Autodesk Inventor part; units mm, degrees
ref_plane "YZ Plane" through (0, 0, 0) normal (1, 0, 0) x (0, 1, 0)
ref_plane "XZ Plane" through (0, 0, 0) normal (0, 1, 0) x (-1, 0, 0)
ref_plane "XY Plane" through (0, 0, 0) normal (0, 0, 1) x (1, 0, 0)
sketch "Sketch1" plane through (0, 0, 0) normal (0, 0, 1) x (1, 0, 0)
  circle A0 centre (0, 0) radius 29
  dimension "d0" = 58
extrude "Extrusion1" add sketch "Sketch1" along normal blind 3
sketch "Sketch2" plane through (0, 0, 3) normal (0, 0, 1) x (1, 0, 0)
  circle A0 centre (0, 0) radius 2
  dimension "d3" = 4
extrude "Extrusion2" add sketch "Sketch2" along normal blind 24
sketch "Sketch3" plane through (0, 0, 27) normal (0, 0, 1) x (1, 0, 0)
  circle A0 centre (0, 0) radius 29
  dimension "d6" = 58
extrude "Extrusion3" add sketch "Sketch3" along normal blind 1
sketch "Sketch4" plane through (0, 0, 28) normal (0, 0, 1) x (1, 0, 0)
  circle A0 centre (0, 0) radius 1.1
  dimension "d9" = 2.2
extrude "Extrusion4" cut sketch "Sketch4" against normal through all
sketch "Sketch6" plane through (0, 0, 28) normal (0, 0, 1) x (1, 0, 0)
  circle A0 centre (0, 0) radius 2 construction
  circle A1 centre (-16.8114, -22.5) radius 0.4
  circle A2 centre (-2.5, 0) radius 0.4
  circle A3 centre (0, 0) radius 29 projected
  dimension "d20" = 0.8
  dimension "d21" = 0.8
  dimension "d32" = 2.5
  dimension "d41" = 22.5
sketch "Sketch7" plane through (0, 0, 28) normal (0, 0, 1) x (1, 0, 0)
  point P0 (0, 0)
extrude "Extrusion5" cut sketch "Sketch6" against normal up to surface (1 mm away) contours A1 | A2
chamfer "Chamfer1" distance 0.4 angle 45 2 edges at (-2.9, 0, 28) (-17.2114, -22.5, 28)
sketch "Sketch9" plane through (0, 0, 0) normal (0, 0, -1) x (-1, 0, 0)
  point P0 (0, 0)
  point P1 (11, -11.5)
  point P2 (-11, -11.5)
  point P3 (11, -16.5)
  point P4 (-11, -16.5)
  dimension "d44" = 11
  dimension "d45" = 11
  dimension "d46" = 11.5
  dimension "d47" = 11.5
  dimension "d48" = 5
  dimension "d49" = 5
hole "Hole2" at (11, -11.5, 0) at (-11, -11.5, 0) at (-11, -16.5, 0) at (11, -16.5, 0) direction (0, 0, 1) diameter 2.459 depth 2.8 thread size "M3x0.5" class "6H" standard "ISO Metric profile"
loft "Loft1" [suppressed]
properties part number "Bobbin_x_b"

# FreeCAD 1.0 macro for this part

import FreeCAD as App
import Part
import Sketcher

V = App.Vector


def edges_at(feature, points):
    """Names of the edges that pass closest to the given points."""
    edges = feature.Shape.Edges
    near = lambda p: min(range(len(edges)), key=lambda i: edges[i].distToShape(Part.Vertex(*p))[0])
    return sorted({f"Edge{near(p) + 1}" for p in points})

doc = App.newDocument("Part")
body = doc.addObject("PartDesign::Body", "Body")

sketch1 = doc.addObject("Sketcher::SketchObject", "Sketch")
body.addObject(sketch1)
sketch1.AttachmentSupport = (doc.XY_Plane, [""])
sketch1.MapMode = "FlatFace"
sketch1.addGeometry(Part.Circle(V(0, 0, 0), V(0, 0, 1), 29), False)
sketch1.addConstraint([
    Sketcher.Constraint("Coincident", 0, 3, -1, 1),
    Sketcher.Constraint("Diameter", 0, 58.0),
])
pad1 = doc.addObject("PartDesign::Pad", "Pad")
body.addObject(pad1)
pad1.Profile = sketch1
pad1.Length = 3

sketch2 = doc.addObject("Sketcher::SketchObject", "Sketch001")
body.addObject(sketch2)
sketch2.AttachmentSupport = (doc.XY_Plane, [""])
sketch2.MapMode = "FlatFace"
sketch2.AttachmentOffset = App.Placement(V(0, 0, 3), App.Rotation())
sketch2.addGeometry(Part.Circle(V(0, 0, 0), V(0, 0, 1), 2), False)
sketch2.addConstraint([
    Sketcher.Constraint("Coincident", 0, 3, -1, 1),
    Sketcher.Constraint("Diameter", 0, 4.0),
])
pad2 = doc.addObject("PartDesign::Pad", "Pad001")
body.addObject(pad2)
pad2.Profile = sketch2
pad2.Length = 24

sketch3 = doc.addObject("Sketcher::SketchObject", "Sketch002")
body.addObject(sketch3)
sketch3.AttachmentSupport = (doc.XY_Plane, [""])
sketch3.MapMode = "FlatFace"
sketch3.AttachmentOffset = App.Placement(V(0, 0, 27), App.Rotation())
sketch3.addGeometry(Part.Circle(V(0, 0, 0), V(0, 0, 1), 29), False)
sketch3.addConstraint([
    Sketcher.Constraint("Coincident", 0, 3, -1, 1),
    Sketcher.Constraint("Diameter", 0, 58.0),
])
pad3 = doc.addObject("PartDesign::Pad", "Pad002")
body.addObject(pad3)
pad3.Profile = sketch3
pad3.Length = 1

sketch4 = doc.addObject("Sketcher::SketchObject", "Sketch003")
body.addObject(sketch4)
sketch4.AttachmentSupport = (doc.XY_Plane, [""])
sketch4.MapMode = "FlatFace"
sketch4.AttachmentOffset = App.Placement(V(0, 0, 28), App.Rotation())
sketch4.addGeometry(Part.Circle(V(0, 0, 0), V(0, 0, 1), 1.1), False)
sketch4.addConstraint([
    Sketcher.Constraint("Coincident", 0, 3, -1, 1),
    Sketcher.Constraint("Diameter", 0, 2.2),
])
pocket1 = doc.addObject("PartDesign::Pocket", "Pocket")
body.addObject(pocket1)
pocket1.Profile = sketch4
pocket1.Type = "ThroughAll"

sketch5 = doc.addObject("Sketcher::SketchObject", "Sketch004")
body.addObject(sketch5)
sketch5.AttachmentSupport = (doc.XY_Plane, [""])
sketch5.MapMode = "FlatFace"
sketch5.AttachmentOffset = App.Placement(V(0, 0, 28), App.Rotation())
sketch5.addGeometry([
    Part.Circle(V(-16.81, -22.5, 0), V(0, 0, 1), 0.4),
    Part.Circle(V(-2.5, 0, 0), V(0, 0, 1), 0.4),
], False)
sketch5.addConstraint([
    Sketcher.Constraint("Equal", 0, 1),
    Sketcher.Constraint("PointOnObject", 1, 3, -1),
    Sketcher.Constraint("Diameter", 0, 0.8),
    Sketcher.Constraint("DistanceY", 0, 3, -1, 1, 22.5),
    Sketcher.Constraint("DistanceX", 1, 3, -1, 1, 2.5),
    Sketcher.Constraint("DistanceX", 0, 3, -1, 1, 16.8114),
])
pocket2 = doc.addObject("PartDesign::Pocket", "Pocket001")
body.addObject(pocket2)
pocket2.Profile = sketch5
pocket2.Length = 1
doc.recompute()

chamfer = doc.addObject("PartDesign::Chamfer", "Chamfer")
body.addObject(chamfer)
chamfer.Base = (pocket2, edges_at(pocket2, [(-2.9, 0, 28), (-17.211, -22.5, 28)]))
chamfer.Size = 0.4

sketch6 = doc.addObject("Sketcher::SketchObject", "Sketch005")
body.addObject(sketch6)
sketch6.AttachmentSupport = (doc.XY_Plane, [""])
sketch6.MapMode = "FlatFace"
sketch6.addGeometry([
    Part.Circle(V(11, -11.5, 0), V(0, 0, 1), 1.2),
    Part.Circle(V(-11, -11.5, 0), V(0, 0, 1), 1.2),
    Part.Circle(V(-11, -16.5, 0), V(0, 0, 1), 1.2),
    Part.Circle(V(11, -16.5, 0), V(0, 0, 1), 1.2),
], False)
sketch6.addConstraint([
    Sketcher.Constraint("Equal", 0, 1),
    Sketcher.Constraint("Equal", 1, 2),
    Sketcher.Constraint("Equal", 2, 3),
    Sketcher.Constraint("Symmetric", 0, 3, 1, 3, -2),
    Sketcher.Constraint("Symmetric", 2, 3, 3, 3, -2),
    Sketcher.Constraint("Vertical", 1, 3, 2, 3),
    Sketcher.Constraint("Diameter", 0, 2.459),
    Sketcher.Constraint("DistanceX", -1, 1, 0, 3, 11.0),
    Sketcher.Constraint("DistanceY", 2, 3, 1, 3, 5.0),
    Sketcher.Constraint("DistanceY", 0, 3, -1, 1, 11.5),
])
doc.recompute()
hole = doc.addObject("PartDesign::Hole", "Hole")
body.addObject(hole)
hole.Profile = sketch6
hole.ThreadType = "None"
hole.Diameter = 2.459
hole.DepthType = "Dimension"
hole.Depth = 2.8
hole.DrillPoint = "Flat"
hole.Reversed = True

doc.recompute()
